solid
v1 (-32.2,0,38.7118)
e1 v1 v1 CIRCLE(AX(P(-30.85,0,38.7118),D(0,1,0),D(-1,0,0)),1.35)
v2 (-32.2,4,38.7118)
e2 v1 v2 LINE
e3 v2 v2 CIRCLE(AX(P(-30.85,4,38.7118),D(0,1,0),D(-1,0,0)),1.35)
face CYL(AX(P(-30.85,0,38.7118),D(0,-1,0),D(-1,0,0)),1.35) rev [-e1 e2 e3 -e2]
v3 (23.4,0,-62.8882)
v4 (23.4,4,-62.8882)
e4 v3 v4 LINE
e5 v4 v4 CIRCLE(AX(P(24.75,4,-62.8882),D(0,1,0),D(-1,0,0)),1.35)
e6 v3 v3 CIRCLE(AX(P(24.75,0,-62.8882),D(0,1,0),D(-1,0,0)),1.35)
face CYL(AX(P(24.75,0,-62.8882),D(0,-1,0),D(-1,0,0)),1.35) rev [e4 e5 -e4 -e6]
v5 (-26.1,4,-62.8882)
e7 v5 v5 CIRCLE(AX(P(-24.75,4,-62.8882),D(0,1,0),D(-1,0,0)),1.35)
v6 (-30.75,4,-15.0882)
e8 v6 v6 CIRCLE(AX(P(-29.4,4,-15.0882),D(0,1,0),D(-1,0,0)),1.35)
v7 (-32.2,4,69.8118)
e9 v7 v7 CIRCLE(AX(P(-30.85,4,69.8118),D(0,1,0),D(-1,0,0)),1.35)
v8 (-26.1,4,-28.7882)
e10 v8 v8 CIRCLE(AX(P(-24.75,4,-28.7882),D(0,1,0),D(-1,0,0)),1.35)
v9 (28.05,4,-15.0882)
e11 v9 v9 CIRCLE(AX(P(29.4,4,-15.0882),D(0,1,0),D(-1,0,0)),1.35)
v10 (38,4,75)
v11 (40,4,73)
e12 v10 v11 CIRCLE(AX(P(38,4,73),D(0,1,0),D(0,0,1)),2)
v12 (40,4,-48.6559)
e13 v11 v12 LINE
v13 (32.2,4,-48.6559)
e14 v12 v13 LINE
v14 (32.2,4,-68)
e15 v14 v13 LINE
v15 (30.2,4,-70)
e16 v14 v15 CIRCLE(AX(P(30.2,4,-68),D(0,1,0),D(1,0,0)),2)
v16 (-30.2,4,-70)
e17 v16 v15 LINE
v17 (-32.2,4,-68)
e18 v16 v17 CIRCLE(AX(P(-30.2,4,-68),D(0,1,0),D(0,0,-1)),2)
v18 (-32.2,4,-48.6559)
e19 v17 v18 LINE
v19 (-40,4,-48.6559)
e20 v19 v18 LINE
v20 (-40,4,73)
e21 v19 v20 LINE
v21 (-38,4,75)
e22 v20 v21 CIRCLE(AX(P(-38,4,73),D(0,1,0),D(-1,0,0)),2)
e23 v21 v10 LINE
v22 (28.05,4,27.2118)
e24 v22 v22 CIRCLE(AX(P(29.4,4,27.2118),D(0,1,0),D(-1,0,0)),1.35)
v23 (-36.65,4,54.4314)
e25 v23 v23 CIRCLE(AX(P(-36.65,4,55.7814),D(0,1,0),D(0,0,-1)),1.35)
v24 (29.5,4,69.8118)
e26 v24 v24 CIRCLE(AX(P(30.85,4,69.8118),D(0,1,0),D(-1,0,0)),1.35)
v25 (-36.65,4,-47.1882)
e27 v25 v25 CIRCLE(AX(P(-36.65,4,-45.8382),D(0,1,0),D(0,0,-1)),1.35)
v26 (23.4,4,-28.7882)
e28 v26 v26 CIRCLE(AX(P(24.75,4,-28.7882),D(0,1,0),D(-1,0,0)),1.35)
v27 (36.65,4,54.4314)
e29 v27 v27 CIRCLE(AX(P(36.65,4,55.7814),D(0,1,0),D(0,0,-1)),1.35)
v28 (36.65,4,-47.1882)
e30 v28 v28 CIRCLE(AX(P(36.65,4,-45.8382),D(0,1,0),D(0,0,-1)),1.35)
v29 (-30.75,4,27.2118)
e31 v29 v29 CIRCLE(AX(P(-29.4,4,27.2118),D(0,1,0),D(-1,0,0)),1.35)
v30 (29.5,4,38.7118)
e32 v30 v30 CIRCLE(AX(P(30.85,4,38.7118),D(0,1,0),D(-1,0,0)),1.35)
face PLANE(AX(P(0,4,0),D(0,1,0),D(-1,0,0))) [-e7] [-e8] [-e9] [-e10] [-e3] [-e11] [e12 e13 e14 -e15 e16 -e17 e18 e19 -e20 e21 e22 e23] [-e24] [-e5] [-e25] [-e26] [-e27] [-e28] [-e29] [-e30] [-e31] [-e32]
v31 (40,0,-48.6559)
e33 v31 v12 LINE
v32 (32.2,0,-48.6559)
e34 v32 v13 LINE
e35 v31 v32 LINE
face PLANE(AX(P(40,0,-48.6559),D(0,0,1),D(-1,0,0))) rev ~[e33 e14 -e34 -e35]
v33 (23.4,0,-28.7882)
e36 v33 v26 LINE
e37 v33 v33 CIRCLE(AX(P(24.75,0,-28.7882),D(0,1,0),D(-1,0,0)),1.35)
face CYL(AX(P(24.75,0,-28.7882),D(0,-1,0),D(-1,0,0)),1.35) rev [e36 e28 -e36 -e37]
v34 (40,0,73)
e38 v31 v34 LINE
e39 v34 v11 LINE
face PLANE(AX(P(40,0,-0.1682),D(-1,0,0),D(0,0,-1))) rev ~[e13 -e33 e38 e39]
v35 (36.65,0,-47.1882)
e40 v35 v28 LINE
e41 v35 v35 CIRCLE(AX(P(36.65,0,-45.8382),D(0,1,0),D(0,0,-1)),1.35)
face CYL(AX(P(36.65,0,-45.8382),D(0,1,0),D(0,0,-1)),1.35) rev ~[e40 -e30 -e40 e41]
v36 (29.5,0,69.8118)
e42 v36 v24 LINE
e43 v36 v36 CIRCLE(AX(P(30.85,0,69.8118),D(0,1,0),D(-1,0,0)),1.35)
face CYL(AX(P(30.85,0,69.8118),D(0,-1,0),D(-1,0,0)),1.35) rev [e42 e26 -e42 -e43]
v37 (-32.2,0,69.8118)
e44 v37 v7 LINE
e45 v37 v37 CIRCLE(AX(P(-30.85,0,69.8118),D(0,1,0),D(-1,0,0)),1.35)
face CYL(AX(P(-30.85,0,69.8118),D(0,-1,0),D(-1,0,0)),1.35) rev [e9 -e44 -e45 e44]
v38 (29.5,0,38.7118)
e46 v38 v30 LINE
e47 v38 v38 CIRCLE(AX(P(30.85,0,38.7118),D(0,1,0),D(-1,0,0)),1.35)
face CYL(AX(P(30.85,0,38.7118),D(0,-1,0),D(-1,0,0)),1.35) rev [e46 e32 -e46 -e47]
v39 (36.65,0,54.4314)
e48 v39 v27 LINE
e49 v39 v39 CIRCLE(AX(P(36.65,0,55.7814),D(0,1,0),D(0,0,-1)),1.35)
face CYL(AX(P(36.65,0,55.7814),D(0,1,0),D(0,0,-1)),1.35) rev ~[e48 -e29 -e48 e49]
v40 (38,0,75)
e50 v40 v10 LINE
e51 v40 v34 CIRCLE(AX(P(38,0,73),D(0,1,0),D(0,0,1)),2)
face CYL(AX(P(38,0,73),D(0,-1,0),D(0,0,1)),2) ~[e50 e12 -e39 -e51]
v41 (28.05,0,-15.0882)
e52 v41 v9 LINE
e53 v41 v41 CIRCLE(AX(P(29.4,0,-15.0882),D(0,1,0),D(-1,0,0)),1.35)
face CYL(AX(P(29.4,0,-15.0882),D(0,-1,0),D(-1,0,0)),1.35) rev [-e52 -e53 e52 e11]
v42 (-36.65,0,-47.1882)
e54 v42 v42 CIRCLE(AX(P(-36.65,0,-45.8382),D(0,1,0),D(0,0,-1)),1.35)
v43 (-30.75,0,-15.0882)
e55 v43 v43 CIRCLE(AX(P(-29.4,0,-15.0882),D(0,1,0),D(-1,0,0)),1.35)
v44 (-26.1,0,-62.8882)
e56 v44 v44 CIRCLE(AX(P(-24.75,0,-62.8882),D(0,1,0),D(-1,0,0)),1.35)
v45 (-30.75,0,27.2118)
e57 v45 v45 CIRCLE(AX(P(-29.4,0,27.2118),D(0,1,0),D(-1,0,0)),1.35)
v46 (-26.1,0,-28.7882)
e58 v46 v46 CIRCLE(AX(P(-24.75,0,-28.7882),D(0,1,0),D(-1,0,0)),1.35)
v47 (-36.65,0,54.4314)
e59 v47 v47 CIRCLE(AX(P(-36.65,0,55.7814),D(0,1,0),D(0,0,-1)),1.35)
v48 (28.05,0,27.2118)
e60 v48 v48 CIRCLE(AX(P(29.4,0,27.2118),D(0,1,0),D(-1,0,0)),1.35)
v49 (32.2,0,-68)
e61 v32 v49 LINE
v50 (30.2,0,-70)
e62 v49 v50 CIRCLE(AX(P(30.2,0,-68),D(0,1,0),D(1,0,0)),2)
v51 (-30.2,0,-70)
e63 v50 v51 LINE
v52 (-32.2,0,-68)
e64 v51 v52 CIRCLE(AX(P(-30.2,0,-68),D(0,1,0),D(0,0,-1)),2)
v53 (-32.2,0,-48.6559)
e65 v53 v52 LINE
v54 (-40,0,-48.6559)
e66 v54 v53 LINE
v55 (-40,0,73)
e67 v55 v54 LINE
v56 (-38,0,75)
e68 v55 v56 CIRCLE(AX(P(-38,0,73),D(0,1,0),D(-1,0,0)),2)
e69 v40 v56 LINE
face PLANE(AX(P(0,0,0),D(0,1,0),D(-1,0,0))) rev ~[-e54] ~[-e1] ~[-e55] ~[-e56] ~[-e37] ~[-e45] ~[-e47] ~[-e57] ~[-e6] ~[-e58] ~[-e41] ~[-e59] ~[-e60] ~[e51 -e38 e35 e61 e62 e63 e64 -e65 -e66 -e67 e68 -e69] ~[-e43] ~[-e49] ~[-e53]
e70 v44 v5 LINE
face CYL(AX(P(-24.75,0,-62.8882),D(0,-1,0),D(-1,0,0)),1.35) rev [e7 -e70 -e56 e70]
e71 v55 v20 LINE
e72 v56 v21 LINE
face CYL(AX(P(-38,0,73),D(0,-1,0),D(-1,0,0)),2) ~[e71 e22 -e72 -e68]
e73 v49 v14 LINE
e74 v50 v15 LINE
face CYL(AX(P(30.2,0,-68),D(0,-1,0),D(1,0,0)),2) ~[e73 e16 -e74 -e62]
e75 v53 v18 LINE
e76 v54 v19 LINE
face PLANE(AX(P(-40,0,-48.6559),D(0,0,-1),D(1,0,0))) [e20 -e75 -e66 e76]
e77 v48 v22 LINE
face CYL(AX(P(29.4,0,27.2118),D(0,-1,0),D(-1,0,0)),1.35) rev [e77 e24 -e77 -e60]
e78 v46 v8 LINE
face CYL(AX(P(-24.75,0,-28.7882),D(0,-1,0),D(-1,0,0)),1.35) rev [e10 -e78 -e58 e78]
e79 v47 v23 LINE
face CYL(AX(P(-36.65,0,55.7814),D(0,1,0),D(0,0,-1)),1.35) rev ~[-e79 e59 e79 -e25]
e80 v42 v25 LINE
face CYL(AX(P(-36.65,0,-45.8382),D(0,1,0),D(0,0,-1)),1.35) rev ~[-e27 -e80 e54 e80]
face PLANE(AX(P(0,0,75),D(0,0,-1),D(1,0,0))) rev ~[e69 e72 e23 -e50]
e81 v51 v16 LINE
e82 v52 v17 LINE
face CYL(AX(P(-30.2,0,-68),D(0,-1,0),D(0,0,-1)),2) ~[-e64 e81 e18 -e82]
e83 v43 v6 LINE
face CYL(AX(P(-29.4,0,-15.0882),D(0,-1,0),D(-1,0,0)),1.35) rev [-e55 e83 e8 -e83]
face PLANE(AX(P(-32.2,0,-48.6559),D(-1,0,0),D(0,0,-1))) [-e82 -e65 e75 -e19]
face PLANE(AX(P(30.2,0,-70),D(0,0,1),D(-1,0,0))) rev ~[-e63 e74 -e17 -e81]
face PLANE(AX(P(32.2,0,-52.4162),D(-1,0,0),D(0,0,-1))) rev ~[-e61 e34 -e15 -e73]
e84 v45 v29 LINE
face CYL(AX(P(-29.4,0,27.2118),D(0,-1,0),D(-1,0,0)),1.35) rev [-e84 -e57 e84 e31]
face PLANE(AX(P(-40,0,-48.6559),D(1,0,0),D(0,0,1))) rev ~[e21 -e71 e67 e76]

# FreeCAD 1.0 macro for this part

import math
import FreeCAD as App
import Part
import Sketcher
from FreeCAD import Vector
Q = App.Units.Quantity

doc = App.newDocument("Part")
body = doc.addObject("PartDesign::Body", "Body")

# Sketch on XZ plane
sketch1 = body.newObject("Sketcher::SketchObject", "Sketch")
sketch1.AttachmentSupport = (doc.getObject("XZ_Plane"), [""])
sketch1.MapMode = "FlatFace"
sketch1.addGeometry([
    Part.ArcOfCircle(Part.Circle(Vector(30.2, -68, 0), Vector(0, 0, 1), 2), math.radians(-90), math.radians(0)),  # 0
    Part.LineSegment(Vector(30.2, -70, 0), Vector(-30.2, -70, 0)),  # 1
    Part.ArcOfCircle(Part.Circle(Vector(-30.2, -68, 0), Vector(0, 0, 1), 2), math.radians(180), math.radians(270)),  # 2
    Part.LineSegment(Vector(-32.2, -68, 0), Vector(-32.2, -48.7, 0)),  # 3
    Part.LineSegment(Vector(-32.2, -48.7, 0), Vector(-40, -48.7, 0)),  # 4
    Part.LineSegment(Vector(-40, -48.7, 0), Vector(-40, 73, 0)),  # 5
    Part.ArcOfCircle(Part.Circle(Vector(-38, 73, 0), Vector(0, 0, 1), 2), math.radians(90), math.radians(180)),  # 6
    Part.LineSegment(Vector(-38, 75, 0), Vector(38, 75, 0)),  # 7
    Part.ArcOfCircle(Part.Circle(Vector(38, 73, 0), Vector(0, 0, 1), 2), math.radians(0), math.radians(90)),  # 8
    Part.LineSegment(Vector(40, 73, 0), Vector(40, -48.7, 0)),  # 9
    Part.LineSegment(Vector(40, -48.7, 0), Vector(32.2, -48.7, 0)),  # 10
    Part.LineSegment(Vector(32.2, -48.7, 0), Vector(32.2, -68, 0)),  # 11
    Part.Circle(Vector(29.4, -15.1, 0), Vector(0, 0, 1), 1.4),  # 12
    Part.Circle(Vector(24.8, -28.8, 0), Vector(0, 0, 1), 1.4),  # 13
    Part.Circle(Vector(24.8, -62.9, 0), Vector(0, 0, 1), 1.4),  # 14
    Part.Circle(Vector(30.9, 38.7, 0), Vector(0, 0, 1), 1.4),  # 15
    Part.Circle(Vector(30.9, 69.8, 0), Vector(0, 0, 1), 1.4),  # 16
    Part.Circle(Vector(29.4, 27.2, 0), Vector(0, 0, 1), 1.4),  # 17
    Part.Circle(Vector(-29.4, -15.1, 0), Vector(0, 0, 1), 1.4),  # 18
    Part.Circle(Vector(-24.8, -62.9, 0), Vector(0, 0, 1), 1.4),  # 19
    Part.Circle(Vector(-24.8, -28.8, 0), Vector(0, 0, 1), 1.4),  # 20
    Part.Circle(Vector(-29.4, 27.2, 0), Vector(0, 0, 1), 1.4),  # 21
    Part.Circle(Vector(-30.9, 38.7, 0), Vector(0, 0, 1), 1.4),  # 22
    Part.Circle(Vector(-30.9, 69.8, 0), Vector(0, 0, 1), 1.4),  # 23
], False)
sketch1.addConstraint([
    Sketcher.Constraint("Tangent", 0, 1, 1, 1),
    Sketcher.Constraint("Tangent", 1, 2, 2, 2),
    Sketcher.Constraint("Tangent", 2, 1, 3, 1),
    Sketcher.Constraint("Coincident", 3, 2, 4, 1),
    Sketcher.Constraint("Coincident", 4, 2, 5, 1),
    Sketcher.Constraint("Tangent", 5, 2, 6, 2),
    Sketcher.Constraint("Tangent", 6, 1, 7, 1),
    Sketcher.Constraint("Tangent", 7, 2, 8, 2),
    Sketcher.Constraint("Tangent", 8, 1, 9, 1),
    Sketcher.Constraint("Coincident", 9, 2, 10, 1),
    Sketcher.Constraint("Coincident", 10, 2, 11, 1),
    Sketcher.Constraint("Tangent", 11, 2, 0, 2),
    Sketcher.Constraint("Horizontal", 1),
    Sketcher.Constraint("Vertical", 3),
    Sketcher.Constraint("Horizontal", 4),
    Sketcher.Constraint("Vertical", 5),
    Sketcher.Constraint("Horizontal", 7),
    Sketcher.Constraint("Vertical", 9),
    Sketcher.Constraint("Horizontal", 10),
    Sketcher.Constraint("Vertical", 11),
    Sketcher.Constraint("Equal", 0, 2),
    Sketcher.Constraint("Equal", 2, 6),
    Sketcher.Constraint("Equal", 6, 8),
    Sketcher.Constraint("Equal", 12, 13),
    Sketcher.Constraint("Equal", 13, 14),
    Sketcher.Constraint("Equal", 14, 15),
    Sketcher.Constraint("Equal", 15, 16),
    Sketcher.Constraint("Equal", 16, 17),
    Sketcher.Constraint("Equal", 17, 18),
    Sketcher.Constraint("Equal", 18, 19),
    Sketcher.Constraint("Equal", 19, 20),
    Sketcher.Constraint("Equal", 20, 21),
    Sketcher.Constraint("Equal", 21, 22),
    Sketcher.Constraint("Equal", 22, 23),
    Sketcher.Constraint("Symmetric", 12, 3, 18, 3, -2),
    Sketcher.Constraint("Symmetric", 14, 3, 19, 3, -2),
    Sketcher.Constraint("Symmetric", 13, 3, 20, 3, -2),
    Sketcher.Constraint("Symmetric", 17, 3, 21, 3, -2),
    Sketcher.Constraint("Symmetric", 15, 3, 22, 3, -2),
    Sketcher.Constraint("Symmetric", 16, 3, 23, 3, -2),
    Sketcher.Constraint("Symmetric", 4, 2, 9, 2, -2),
    Sketcher.Constraint("Vertical", 13, 3, 14, 3),
    Sketcher.Constraint("Vertical", 15, 3, 16, 3),
    Sketcher.Constraint("Vertical", 12, 3, 17, 3),
    Sketcher.Constraint("Equal", 4, 10),
    Sketcher.Constraint("Radius", 0, Q("2 mm")),
    Sketcher.Constraint("Diameter", 12, Q("2.7 mm")),
    Sketcher.Constraint("DistanceX", 12, 3, 0, 3, Q("0.8 mm")),
    Sketcher.Constraint("DistanceX", 7, 1, 7, 2, Q("76 mm")),
    Sketcher.Constraint("DistanceX", 1, 2, 1, 1, Q("60.4 mm")),
    Sketcher.Constraint("DistanceY", 0, 3, -1, 1, Q("68 mm")),
    Sketcher.Constraint("DistanceY", -1, 1, 6, 3, Q("73 mm")),
    Sketcher.Constraint("DistanceY", 13, 3, 17, 3, Q("56 mm")),
    Sketcher.Constraint("DistanceY", 13, 3, 12, 3, Q("13.7 mm")),
    Sketcher.Constraint("DistanceY", 14, 3, 13, 3, Q("34.1 mm")),
    Sketcher.Constraint("DistanceY", 12, 3, 15, 3, Q("53.8 mm")),
    Sketcher.Constraint("DistanceX", 13, 3, 15, 3, Q("6.1 mm")),
    Sketcher.Constraint("DistanceY", 15, 3, 16, 3, Q("31.1 mm")),
    Sketcher.Constraint("DistanceX", 19, 3, 14, 3, Q("49.5 mm")),
    Sketcher.Constraint("DistanceY", 3, 1, 3, 2, Q("19.344 mm")),
    Sketcher.Constraint("DistanceY", 12, 3, -1, 1, Q("15.0882 mm")),
])
pad1 = body.newObject("PartDesign::Pad", "Pad")
pad1.Profile = sketch1
pad1.Length = 4
pad1.Reversed = True

# Sketch on XZ plane
sketch2 = body.newObject("Sketcher::SketchObject", "Sketch001")
sketch2.AttachmentSupport = (doc.getObject("XZ_Plane"), [""])
sketch2.MapMode = "FlatFace"
sketch2.addGeometry([
    Part.Circle(Vector(36.6, -45.8, 0), Vector(0, 0, 1), 1.4),
    Part.Circle(Vector(-36.6, -45.8, 0), Vector(0, 0, 1), 1.4),
    Part.Circle(Vector(-36.6, 55.8, 0), Vector(0, 0, 1), 1.4),
    Part.Circle(Vector(36.6, 55.8, 0), Vector(0, 0, 1), 1.4),
], False)
sketch2.addConstraint([
    Sketcher.Constraint("Equal", 0, 1),
    Sketcher.Constraint("Equal", 1, 2),
    Sketcher.Constraint("Equal", 2, 3),
    Sketcher.Constraint("Symmetric", 0, 3, 1, 3, -2),
    Sketcher.Constraint("Symmetric", 2, 3, 3, 3, -2),
    Sketcher.Constraint("Vertical", 1, 3, 2, 3),
    Sketcher.Constraint("Diameter", 0, Q("2.7 mm")),
    Sketcher.Constraint("DistanceX", 1, 3, 0, 3, Q("73.3 mm")),
    Sketcher.Constraint("DistanceY", 0, 3, -1, 1, Q("45.8382 mm")),
    Sketcher.Constraint("DistanceY", -1, 1, 2, 3, Q("55.7814 mm")),
])
doc.recompute()
hole = body.newObject("PartDesign::Hole", "Hole")
hole.Profile = sketch2
hole.ThreadType = "None"
hole.Diameter = 2.7
hole.DepthType = "ThroughAll"

doc.recompute()
